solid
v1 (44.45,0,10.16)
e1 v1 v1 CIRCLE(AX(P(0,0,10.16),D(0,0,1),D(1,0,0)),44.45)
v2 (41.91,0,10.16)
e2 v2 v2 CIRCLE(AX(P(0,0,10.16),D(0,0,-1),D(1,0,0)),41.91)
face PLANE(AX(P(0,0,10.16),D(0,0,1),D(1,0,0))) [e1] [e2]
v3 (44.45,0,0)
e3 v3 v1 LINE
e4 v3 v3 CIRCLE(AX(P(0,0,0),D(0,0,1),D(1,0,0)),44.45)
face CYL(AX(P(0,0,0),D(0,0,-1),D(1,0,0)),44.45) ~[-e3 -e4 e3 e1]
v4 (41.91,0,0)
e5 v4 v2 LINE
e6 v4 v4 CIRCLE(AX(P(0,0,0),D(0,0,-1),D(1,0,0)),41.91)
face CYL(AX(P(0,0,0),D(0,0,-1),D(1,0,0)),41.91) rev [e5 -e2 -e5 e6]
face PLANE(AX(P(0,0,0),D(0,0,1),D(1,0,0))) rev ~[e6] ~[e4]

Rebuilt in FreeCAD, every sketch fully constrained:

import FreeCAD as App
import Part
import Sketcher

V = App.Vector
Q = App.Units.Quantity


def faces_at(feature, points):
    """Names of the faces that lie closest to the given points."""
    faces = feature.Shape.Faces
    near = lambda p: min(range(len(faces)), key=lambda i: faces[i].distToShape(Part.Vertex(*p))[0])
    return sorted({f"Face{near(p) + 1}" for p in points})

doc = App.newDocument("Part")
body = doc.addObject("PartDesign::Body", "Body")

sketch1 = doc.addObject("Sketcher::SketchObject", "Sketch")
body.addObject(sketch1)
sketch1.AttachmentSupport = (doc.XY_Plane, [""])
sketch1.MapMode = "FlatFace"
sketch1.addGeometry(Part.Circle(V(0, 0, 0), V(0, 0, 1), 44.45), False)
sketch1.addConstraint([
    Sketcher.Constraint("Coincident", 0, 3, -1, 1),
    Sketcher.Constraint("Diameter", 0, Q("3.5 in")),
])
pad1 = doc.addObject("PartDesign::Pad", "Pad")
body.addObject(pad1)
pad1.Profile = sketch1
pad1.Length = Q("0.4 in")
doc.recompute()

thickness = doc.addObject("PartDesign::Thickness", "Thickness")
body.addObject(thickness)
thickness.Base = (pad1, faces_at(pad1, [(5.66, 0, 0), (5.66, 0, 10.16)]))
thickness.Value = Q("0.1 in")
thickness.Reversed = True
thickness.Join = "Intersection"

doc.recompute()
